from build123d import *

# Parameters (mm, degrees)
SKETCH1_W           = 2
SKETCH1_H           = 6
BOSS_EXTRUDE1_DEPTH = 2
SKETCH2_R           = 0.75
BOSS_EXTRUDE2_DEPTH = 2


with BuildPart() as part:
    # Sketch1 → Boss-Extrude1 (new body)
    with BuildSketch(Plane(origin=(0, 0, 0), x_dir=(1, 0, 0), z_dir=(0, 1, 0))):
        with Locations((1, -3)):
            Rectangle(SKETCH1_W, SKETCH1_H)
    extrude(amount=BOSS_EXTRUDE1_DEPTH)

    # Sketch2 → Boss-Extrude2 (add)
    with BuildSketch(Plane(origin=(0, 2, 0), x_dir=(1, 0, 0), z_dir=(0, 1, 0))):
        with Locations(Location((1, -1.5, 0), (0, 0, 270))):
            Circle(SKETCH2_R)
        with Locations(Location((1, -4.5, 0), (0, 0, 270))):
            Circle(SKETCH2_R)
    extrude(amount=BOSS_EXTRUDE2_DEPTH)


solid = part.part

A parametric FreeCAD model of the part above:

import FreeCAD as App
import Part
import Sketcher

V = App.Vector


def add_polygon(sketch, points):
    """Adds a closed chain of lines whose ends are joined by coincident constraints."""
    first, n = sketch.GeometryCount, len(points)
    for a, b in zip(points, points[1:] + points[:1]):
        sketch.addGeometry(Part.LineSegment(App.Vector(*a, 0), App.Vector(*b, 0)), False)
    for i in range(n):
        sketch.addConstraint(Sketcher.Constraint("Coincident", first + i, 2, first + (i + 1) % n, 1))

doc = App.newDocument("Part")
body = doc.addObject("PartDesign::Body", "Body")

# Sketch on XZ plane
sketch1 = body.newObject("Sketcher::SketchObject", "Sketch")
sketch1.AttachmentSupport = (doc.getObject("XZ_Plane"), [""])
sketch1.MapMode = "FlatFace"
add_polygon(sketch1, [(0, 0), (0, 6), (2, 6), (2, 0)])  # lines 0-3
sketch1.addConstraint([
    Sketcher.Constraint("Vertical", 0),
    Sketcher.Constraint("Horizontal", 1),
    Sketcher.Constraint("Vertical", 2),
    Sketcher.Constraint("Horizontal", 3),
    Sketcher.Constraint("Coincident", 3, 2, -1, 1),
    Sketcher.Constraint("DistanceX", 1, 1, 1, 2, 2.0),
    Sketcher.Constraint("DistanceY", 0, 1, 0, 2, 6.0),
])
pad1 = body.newObject("PartDesign::Pad", "Pad")
pad1.Profile = sketch1
pad1.Length = 2
pad1.Reversed = True

# Sketch on XZ plane
sketch2 = body.newObject("Sketcher::SketchObject", "Sketch001")
sketch2.AttachmentSupport = (doc.getObject("XZ_Plane"), [""])
sketch2.MapMode = "FlatFace"
sketch2.AttachmentOffset = App.Placement(V(0, 0, -2), App.Rotation())
sketch2.addGeometry([
    Part.Circle(V(1, 1.5, 0), V(0, 0, 1), 0.8),
    Part.Circle(V(1, 4.5, 0), V(0, 0, 1), 0.8),
], False)
sketch2.addConstraint([
    Sketcher.Constraint("Equal", 0, 1),
    Sketcher.Constraint("Vertical", 0, 3, 1, 3),
    Sketcher.Constraint("Diameter", 0, 1.5),
    Sketcher.Constraint("DistanceX", -1, 1, 0, 3, 1.0),
    Sketcher.Constraint("DistanceY", 0, 3, 1, 3, 3.0),
    Sketcher.Constraint("DistanceY", -1, 1, 0, 3, 1.5),
])
pad2 = body.newObject("PartDesign::Pad", "Pad001")
pad2.Profile = sketch2
pad2.Length = 2
pad2.Reversed = True

doc.recompute()
